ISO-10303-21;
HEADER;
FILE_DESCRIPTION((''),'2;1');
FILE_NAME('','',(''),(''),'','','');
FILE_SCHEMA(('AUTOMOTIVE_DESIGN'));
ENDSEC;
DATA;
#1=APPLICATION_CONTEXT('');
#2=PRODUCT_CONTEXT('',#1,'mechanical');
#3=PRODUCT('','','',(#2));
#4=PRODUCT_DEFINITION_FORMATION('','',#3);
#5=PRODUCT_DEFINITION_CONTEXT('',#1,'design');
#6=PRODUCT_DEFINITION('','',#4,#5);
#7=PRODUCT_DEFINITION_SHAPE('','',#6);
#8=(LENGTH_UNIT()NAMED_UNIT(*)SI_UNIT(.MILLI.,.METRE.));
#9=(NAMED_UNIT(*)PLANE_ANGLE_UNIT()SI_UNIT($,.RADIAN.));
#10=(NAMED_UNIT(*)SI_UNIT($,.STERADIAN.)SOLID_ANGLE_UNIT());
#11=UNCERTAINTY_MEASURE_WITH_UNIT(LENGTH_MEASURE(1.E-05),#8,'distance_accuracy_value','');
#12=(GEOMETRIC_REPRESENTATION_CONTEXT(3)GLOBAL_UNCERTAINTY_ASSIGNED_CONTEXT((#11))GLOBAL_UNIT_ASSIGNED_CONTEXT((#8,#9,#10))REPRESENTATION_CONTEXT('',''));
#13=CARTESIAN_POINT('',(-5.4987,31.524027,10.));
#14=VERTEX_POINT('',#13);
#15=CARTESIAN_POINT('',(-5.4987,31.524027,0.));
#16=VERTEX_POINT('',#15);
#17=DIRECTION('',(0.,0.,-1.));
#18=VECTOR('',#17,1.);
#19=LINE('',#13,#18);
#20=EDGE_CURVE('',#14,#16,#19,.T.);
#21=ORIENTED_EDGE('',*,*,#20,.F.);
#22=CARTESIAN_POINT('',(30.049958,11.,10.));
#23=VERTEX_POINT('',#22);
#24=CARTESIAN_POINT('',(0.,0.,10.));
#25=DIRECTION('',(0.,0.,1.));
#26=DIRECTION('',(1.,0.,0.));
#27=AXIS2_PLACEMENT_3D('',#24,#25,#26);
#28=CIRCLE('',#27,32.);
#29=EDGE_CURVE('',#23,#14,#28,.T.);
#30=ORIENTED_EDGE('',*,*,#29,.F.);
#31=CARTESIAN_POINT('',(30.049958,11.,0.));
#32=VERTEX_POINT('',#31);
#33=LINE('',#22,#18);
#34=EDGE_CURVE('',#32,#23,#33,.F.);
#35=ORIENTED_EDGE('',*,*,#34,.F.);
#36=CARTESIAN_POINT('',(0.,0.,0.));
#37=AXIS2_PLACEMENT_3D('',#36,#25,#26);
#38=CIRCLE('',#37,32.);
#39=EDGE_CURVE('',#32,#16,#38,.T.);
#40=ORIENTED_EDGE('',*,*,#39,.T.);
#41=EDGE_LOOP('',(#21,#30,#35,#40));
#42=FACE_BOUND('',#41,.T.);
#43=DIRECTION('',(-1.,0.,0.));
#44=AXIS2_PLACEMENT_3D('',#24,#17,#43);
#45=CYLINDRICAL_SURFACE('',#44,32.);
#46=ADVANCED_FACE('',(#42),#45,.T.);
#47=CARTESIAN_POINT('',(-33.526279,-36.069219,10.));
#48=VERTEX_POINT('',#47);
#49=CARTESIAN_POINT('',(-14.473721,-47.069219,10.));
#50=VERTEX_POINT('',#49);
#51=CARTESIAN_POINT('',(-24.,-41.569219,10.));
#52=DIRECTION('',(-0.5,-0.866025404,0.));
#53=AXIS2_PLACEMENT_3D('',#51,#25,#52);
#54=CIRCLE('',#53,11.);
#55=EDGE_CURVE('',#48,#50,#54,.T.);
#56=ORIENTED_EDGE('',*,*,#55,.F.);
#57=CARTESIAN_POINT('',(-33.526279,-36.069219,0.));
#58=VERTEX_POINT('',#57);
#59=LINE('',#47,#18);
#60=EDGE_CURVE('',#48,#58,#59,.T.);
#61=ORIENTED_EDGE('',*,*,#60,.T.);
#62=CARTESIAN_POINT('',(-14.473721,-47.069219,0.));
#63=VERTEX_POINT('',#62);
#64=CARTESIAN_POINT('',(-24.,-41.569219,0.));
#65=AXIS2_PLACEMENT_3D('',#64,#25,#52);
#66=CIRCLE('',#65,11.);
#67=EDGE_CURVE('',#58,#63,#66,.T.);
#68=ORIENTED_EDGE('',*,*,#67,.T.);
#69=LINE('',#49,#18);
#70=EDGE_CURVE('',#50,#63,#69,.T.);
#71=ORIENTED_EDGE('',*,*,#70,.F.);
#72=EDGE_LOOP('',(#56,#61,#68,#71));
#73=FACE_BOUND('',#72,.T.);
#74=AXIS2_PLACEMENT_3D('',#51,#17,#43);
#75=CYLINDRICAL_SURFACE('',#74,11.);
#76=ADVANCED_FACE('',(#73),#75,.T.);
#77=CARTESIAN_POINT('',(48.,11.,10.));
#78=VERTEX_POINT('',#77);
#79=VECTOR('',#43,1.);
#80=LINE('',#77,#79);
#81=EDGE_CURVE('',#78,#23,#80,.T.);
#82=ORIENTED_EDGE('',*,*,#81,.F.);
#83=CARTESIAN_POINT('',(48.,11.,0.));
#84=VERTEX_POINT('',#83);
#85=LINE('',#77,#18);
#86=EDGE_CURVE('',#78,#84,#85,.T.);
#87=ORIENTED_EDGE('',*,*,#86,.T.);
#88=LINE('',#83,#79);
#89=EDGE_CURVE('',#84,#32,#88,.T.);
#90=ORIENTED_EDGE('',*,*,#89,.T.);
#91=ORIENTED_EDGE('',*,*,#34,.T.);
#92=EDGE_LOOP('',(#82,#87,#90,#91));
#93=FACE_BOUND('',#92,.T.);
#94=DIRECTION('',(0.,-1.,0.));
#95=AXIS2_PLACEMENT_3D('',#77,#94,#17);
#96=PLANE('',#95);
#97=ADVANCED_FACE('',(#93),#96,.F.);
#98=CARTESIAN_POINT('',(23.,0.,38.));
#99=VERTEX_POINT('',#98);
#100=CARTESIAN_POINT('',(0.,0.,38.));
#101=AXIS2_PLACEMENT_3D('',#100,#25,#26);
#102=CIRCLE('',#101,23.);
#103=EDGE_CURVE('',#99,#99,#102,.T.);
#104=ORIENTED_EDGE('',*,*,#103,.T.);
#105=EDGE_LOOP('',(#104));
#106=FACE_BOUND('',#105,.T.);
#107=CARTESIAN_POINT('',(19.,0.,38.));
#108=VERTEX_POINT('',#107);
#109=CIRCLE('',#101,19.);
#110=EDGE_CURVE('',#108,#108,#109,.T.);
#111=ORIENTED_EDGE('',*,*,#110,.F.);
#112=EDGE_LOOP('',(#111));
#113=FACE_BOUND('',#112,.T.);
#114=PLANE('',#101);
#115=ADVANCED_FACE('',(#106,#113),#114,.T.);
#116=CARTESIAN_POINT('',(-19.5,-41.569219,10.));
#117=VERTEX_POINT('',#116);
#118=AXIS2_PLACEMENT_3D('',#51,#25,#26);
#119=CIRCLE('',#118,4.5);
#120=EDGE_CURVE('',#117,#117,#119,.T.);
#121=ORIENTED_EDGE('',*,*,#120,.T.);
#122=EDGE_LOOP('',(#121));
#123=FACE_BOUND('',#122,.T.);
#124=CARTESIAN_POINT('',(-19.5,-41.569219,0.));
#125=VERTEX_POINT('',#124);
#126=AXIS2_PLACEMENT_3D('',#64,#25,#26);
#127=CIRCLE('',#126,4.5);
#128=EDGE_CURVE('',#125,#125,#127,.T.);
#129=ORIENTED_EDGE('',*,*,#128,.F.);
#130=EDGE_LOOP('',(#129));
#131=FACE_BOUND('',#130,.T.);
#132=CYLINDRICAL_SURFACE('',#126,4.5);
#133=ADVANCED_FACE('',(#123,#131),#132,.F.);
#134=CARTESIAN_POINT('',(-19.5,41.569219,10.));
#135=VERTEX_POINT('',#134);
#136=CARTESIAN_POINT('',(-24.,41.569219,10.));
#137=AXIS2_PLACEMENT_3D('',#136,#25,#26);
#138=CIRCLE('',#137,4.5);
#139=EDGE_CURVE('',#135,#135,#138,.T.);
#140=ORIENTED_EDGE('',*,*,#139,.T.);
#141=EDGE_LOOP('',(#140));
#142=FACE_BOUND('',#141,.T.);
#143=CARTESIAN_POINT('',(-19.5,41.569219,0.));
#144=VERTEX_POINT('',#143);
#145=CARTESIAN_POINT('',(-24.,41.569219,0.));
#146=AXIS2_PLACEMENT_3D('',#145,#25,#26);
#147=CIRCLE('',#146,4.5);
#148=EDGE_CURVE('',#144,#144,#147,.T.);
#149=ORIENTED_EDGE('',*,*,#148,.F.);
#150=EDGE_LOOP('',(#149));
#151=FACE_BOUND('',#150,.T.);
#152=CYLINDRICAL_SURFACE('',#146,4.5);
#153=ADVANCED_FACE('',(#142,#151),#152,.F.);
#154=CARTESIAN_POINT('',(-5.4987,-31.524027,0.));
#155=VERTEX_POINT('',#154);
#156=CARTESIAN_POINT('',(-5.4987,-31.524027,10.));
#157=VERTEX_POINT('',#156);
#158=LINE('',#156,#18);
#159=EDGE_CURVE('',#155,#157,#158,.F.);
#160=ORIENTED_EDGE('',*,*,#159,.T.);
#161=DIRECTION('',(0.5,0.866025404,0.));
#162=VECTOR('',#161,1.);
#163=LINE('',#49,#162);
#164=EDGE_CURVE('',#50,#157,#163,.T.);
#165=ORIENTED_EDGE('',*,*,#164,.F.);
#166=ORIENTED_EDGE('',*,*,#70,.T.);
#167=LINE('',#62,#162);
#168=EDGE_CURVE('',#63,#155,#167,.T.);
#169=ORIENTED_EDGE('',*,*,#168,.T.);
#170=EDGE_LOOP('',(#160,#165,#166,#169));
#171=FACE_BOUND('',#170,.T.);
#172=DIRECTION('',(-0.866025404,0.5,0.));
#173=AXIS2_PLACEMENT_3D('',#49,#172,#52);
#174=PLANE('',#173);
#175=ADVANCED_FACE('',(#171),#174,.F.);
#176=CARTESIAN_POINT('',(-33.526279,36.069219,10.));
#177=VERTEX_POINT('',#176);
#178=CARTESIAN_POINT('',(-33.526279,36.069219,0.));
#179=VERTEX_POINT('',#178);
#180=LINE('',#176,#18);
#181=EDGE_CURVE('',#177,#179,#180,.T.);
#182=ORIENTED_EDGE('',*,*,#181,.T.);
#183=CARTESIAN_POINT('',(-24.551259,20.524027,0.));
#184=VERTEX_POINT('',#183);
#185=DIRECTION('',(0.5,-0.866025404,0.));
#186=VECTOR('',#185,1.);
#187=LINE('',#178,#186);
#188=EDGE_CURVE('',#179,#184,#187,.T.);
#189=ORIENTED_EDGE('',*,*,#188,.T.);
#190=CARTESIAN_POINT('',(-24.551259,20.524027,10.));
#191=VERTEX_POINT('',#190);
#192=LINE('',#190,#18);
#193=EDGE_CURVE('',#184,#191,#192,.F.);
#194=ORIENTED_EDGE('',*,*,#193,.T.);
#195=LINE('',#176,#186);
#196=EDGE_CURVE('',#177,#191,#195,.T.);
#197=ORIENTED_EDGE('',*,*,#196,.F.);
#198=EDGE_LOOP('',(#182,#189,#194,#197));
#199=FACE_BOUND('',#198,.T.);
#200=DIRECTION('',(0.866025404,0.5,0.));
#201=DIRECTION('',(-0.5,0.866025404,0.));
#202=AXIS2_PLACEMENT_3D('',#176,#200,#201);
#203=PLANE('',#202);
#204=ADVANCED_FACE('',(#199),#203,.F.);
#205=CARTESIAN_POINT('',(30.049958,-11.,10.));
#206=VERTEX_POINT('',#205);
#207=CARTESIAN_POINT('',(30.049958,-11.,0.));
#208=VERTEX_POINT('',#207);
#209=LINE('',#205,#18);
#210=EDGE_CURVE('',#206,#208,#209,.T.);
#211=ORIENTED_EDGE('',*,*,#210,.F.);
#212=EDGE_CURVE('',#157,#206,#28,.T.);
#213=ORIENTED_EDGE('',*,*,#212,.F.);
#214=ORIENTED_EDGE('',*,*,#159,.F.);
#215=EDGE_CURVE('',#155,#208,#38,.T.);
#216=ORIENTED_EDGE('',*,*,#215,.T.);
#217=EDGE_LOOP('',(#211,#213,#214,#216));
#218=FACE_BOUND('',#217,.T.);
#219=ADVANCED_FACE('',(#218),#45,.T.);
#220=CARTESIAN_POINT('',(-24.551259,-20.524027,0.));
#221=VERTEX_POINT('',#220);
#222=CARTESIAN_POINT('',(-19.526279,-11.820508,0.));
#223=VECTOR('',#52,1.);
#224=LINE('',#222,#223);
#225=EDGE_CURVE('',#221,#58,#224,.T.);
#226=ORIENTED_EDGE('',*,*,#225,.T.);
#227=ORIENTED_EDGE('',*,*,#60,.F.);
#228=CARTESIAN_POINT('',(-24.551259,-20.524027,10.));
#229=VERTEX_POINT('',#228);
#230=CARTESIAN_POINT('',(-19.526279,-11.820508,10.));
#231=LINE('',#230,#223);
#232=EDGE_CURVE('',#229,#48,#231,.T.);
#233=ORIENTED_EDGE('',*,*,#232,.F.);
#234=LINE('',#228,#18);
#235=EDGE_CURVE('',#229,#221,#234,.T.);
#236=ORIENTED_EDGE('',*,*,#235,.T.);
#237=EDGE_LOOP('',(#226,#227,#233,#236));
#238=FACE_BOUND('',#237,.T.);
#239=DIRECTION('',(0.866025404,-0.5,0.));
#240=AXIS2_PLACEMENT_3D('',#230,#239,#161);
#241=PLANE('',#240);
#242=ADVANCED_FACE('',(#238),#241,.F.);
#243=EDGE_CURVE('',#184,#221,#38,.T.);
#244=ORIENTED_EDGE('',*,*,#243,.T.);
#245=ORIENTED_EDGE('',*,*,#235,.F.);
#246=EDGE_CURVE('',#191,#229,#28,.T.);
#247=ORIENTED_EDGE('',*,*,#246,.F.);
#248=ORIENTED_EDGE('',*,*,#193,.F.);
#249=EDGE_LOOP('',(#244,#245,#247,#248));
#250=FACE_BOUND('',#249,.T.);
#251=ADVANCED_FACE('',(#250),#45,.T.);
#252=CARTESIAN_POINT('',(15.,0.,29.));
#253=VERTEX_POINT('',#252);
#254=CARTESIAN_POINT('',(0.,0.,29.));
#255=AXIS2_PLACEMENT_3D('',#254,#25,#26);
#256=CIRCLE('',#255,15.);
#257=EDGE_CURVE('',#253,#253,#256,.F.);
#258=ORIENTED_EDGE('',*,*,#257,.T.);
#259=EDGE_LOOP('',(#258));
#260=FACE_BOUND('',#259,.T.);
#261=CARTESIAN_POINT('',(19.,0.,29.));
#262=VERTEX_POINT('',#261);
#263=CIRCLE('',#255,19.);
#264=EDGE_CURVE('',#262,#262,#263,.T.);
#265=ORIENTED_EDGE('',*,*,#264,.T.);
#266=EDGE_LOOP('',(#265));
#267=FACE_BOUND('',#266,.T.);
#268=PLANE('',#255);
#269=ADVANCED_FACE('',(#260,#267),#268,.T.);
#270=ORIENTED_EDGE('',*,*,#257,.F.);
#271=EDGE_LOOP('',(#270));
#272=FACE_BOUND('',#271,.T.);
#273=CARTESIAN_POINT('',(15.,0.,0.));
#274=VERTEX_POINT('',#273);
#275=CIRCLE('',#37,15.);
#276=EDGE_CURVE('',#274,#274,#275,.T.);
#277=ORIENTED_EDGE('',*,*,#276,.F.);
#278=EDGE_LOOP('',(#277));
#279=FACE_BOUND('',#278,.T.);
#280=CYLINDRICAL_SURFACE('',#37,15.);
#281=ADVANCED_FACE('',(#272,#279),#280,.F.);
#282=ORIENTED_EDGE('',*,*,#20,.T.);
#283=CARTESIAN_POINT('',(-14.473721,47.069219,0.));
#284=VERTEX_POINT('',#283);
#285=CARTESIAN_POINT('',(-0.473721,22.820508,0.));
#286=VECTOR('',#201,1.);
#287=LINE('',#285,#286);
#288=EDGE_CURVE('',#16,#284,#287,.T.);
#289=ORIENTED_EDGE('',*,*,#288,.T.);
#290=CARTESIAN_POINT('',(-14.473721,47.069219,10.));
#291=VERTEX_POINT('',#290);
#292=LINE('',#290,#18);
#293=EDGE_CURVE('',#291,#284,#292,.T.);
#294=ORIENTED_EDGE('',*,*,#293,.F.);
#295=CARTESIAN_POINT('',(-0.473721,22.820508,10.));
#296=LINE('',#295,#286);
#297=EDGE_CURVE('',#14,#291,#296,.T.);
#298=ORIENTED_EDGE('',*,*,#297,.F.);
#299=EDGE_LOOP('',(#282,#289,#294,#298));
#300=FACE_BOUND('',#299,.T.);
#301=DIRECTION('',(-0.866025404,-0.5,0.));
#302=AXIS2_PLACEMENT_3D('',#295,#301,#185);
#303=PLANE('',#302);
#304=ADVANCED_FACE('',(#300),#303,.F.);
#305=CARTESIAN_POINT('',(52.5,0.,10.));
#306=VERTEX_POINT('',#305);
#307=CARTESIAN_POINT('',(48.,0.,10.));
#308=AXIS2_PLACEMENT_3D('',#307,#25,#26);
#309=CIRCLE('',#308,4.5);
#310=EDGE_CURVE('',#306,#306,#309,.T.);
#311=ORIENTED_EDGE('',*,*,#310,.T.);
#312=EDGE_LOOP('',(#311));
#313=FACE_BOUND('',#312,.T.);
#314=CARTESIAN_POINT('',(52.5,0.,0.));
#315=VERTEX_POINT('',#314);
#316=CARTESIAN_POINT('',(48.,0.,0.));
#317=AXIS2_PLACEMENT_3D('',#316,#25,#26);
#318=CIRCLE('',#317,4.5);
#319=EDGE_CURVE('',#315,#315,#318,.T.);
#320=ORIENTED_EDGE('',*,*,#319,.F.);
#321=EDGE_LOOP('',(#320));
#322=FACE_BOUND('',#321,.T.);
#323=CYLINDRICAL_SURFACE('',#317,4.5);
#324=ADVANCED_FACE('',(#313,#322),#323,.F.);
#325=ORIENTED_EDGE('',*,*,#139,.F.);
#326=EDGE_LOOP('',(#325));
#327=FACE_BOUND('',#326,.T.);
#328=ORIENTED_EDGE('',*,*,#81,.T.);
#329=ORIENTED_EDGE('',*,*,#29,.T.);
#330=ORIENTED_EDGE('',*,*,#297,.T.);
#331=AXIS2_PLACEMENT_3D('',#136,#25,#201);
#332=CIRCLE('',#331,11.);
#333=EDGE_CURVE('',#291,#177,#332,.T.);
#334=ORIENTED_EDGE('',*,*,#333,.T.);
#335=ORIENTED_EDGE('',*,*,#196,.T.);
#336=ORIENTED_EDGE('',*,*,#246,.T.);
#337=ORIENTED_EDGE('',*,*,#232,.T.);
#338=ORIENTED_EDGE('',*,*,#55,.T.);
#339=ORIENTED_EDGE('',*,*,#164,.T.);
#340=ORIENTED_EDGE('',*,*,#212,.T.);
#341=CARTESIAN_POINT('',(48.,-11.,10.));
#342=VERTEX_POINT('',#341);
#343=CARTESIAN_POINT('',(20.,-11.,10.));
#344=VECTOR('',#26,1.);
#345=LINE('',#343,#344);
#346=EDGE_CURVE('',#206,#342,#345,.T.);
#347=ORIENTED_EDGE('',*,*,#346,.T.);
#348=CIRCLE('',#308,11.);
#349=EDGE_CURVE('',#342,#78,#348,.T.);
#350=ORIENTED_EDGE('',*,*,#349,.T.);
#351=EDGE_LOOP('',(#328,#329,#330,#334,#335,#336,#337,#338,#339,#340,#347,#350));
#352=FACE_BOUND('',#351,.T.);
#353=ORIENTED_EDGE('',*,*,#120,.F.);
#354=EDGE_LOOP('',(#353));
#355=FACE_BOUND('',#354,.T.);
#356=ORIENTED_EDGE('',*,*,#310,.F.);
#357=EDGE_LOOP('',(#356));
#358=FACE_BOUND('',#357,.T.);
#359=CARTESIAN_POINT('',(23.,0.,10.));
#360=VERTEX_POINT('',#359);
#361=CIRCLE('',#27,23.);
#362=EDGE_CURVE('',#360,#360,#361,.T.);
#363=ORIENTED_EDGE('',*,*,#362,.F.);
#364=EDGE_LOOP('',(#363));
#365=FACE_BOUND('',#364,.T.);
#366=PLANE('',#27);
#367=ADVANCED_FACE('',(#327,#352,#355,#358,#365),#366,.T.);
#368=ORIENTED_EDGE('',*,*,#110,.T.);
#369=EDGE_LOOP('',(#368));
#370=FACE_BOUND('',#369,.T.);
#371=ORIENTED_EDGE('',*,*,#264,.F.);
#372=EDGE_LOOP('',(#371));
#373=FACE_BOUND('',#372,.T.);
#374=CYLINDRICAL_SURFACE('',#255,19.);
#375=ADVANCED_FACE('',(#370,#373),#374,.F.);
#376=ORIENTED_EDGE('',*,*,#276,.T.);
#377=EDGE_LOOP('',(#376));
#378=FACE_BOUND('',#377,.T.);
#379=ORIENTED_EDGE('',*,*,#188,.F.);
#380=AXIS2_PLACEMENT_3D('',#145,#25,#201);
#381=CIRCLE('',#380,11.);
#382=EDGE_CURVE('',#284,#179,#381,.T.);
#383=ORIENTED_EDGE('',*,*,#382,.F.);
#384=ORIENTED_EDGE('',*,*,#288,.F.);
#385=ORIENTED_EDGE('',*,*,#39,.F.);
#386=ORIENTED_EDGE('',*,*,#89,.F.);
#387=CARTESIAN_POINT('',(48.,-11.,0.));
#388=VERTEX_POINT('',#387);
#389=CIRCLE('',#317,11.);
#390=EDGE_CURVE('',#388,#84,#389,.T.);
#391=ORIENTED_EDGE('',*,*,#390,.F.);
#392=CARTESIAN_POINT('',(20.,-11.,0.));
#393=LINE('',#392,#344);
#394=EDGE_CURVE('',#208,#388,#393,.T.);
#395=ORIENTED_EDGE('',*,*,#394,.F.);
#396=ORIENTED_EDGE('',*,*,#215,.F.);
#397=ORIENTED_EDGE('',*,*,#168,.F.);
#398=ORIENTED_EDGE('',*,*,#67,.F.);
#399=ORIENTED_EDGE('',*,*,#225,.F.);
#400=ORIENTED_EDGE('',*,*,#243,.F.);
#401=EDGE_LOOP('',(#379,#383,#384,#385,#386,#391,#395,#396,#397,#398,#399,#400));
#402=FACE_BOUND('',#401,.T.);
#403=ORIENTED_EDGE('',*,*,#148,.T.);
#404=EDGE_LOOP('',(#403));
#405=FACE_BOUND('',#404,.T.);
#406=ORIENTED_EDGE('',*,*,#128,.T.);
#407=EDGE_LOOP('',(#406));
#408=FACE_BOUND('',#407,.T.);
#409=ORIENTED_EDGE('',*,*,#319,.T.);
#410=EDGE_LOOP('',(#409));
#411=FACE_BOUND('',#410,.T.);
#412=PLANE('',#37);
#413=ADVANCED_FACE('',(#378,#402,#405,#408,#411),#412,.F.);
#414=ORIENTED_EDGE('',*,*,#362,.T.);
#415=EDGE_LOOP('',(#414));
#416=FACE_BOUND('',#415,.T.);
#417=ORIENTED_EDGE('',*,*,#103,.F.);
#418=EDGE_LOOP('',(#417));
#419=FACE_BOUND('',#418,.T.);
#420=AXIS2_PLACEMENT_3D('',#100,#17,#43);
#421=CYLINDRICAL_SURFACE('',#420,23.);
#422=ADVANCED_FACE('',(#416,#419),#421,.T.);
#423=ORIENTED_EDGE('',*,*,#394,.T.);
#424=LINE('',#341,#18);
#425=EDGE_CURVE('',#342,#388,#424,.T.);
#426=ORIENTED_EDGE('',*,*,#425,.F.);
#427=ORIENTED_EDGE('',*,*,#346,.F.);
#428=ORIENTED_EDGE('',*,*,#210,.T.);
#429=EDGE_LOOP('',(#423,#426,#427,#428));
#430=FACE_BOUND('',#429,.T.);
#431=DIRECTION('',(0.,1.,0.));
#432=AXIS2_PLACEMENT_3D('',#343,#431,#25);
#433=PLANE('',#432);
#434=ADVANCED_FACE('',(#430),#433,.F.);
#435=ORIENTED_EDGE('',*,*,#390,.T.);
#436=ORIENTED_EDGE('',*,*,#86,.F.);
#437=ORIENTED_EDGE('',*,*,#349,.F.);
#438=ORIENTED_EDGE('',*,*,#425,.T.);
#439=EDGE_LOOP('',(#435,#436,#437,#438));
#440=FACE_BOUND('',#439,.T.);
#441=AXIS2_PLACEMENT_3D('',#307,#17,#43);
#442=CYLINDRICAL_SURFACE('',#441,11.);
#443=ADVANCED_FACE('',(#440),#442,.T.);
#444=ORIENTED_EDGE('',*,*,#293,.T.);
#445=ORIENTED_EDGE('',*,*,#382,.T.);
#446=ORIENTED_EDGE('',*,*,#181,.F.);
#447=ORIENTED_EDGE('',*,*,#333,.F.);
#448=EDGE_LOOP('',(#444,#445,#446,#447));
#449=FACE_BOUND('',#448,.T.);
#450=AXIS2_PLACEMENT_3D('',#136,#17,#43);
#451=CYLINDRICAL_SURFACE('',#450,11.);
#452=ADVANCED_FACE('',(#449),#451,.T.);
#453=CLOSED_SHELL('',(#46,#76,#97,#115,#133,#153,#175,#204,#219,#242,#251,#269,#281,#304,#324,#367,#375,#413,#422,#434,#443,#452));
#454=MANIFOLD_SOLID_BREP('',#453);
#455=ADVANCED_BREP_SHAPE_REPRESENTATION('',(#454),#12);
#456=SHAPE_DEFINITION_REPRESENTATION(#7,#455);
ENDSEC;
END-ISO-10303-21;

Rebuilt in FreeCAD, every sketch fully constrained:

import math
import FreeCAD as App
import Part
import Sketcher

V = App.Vector

doc = App.newDocument("Part")
body = doc.addObject("PartDesign::Body", "Body")

sketch1 = doc.addObject("Sketcher::SketchObject", "Sketch")
body.addObject(sketch1)
sketch1.AttachmentSupport = (doc.XY_Plane, [""])
sketch1.MapMode = "FlatFace"
sketch1.addGeometry(Part.Circle(V(0, 0, 0), V(0, 0, 1), 32), False)
sketch1.addConstraint([
    Sketcher.Constraint("Coincident", 0, 3, -1, 1),
    Sketcher.Constraint("Diameter", 0, 64.0),
])
pad1 = doc.addObject("PartDesign::Pad", "Pad")
body.addObject(pad1)
pad1.Profile = sketch1
pad1.Length = 10

sketch2 = doc.addObject("Sketcher::SketchObject", "Sketch001")
body.addObject(sketch2)
sketch2.AttachmentSupport = (doc.XY_Plane, [""])
sketch2.MapMode = "FlatFace"
sketch2.addGeometry([
    Part.LineSegment(V(20, -11, 0), V(48, -11, 0)),
    Part.ArcOfCircle(Part.Circle(V(48, 0, 0), V(0, 0, 1), 11), math.radians(-90), math.radians(90)),
    Part.LineSegment(V(48, 11, 0), V(20, 11, 0)),
    Part.ArcOfCircle(Part.Circle(V(20, 0, 0), V(0, 0, 1), 11), math.radians(90), math.radians(270)),
], False)
sketch2.addConstraint([
    Sketcher.Constraint("Tangent", 0, 2, 1, 1),
    Sketcher.Constraint("Tangent", 1, 2, 2, 1),
    Sketcher.Constraint("Tangent", 2, 2, 3, 1),
    Sketcher.Constraint("Tangent", 3, 2, 0, 1),
    Sketcher.Constraint("Horizontal", 0),
    Sketcher.Constraint("Horizontal", 2),
    Sketcher.Constraint("PointOnObject", 1, 3, -1),
    Sketcher.Constraint("Radius", 1, 11.0),
    Sketcher.Constraint("DistanceX", 0, 1, 0, 2, 28.0),
    Sketcher.Constraint("DistanceX", -1, 1, 1, 3, 48.0),
])
pad2 = doc.addObject("PartDesign::Pad", "Pad001")
body.addObject(pad2)
pad2.Profile = sketch2
pad2.Length = 10
doc.recompute()

polarpattern = doc.addObject("PartDesign::PolarPattern", "PolarPattern")
body.addObject(polarpattern)
polarpattern.Originals = [pad2]
polarpattern.Axis = (doc.Z_Axis, [""])
polarpattern.Angle = 360
polarpattern.Occurrences = 3
body.Tip = polarpattern

sketch3 = doc.addObject("Sketcher::SketchObject", "Sketch002")
body.addObject(sketch3)
sketch3.AttachmentSupport = (doc.XY_Plane, [""])
sketch3.MapMode = "FlatFace"
sketch3.AttachmentOffset = App.Placement(V(0, 0, 10), App.Rotation())
sketch3.addGeometry(Part.Circle(V(0, 0, 0), V(0, 0, 1), 23), False)
sketch3.addConstraint([
    Sketcher.Constraint("Coincident", 0, 3, -1, 1),
    Sketcher.Constraint("Diameter", 0, 46.0),
])
pad3 = doc.addObject("PartDesign::Pad", "Pad002")
body.addObject(pad3)
pad3.Profile = sketch3
pad3.Length = 28

sketch4 = doc.addObject("Sketcher::SketchObject", "Sketch003")
body.addObject(sketch4)
sketch4.AttachmentSupport = (doc.XY_Plane, [""])
sketch4.MapMode = "FlatFace"
sketch4.AttachmentOffset = App.Placement(V(0, 0, 38), App.Rotation())
sketch4.addGeometry(Part.Circle(V(0, 0, 0), V(0, 0, 1), 15), False)
sketch4.addConstraint([
    Sketcher.Constraint("Coincident", 0, 3, -1, 1),
    Sketcher.Constraint("Diameter", 0, 30.0),
])
pocket1 = doc.addObject("PartDesign::Pocket", "Pocket")
body.addObject(pocket1)
pocket1.Profile = sketch4
pocket1.Type = "ThroughAll"

sketch5 = doc.addObject("Sketcher::SketchObject", "Sketch004")
body.addObject(sketch5)
sketch5.AttachmentSupport = (doc.XY_Plane, [""])
sketch5.MapMode = "FlatFace"
sketch5.AttachmentOffset = App.Placement(V(0, 0, 38), App.Rotation())
sketch5.addGeometry(Part.Circle(V(0, 0, 0), V(0, 0, 1), 19), False)
sketch5.addConstraint([
    Sketcher.Constraint("Coincident", 0, 3, -1, 1),
    Sketcher.Constraint("Diameter", 0, 38.0),
])
pocket2 = doc.addObject("PartDesign::Pocket", "Pocket001")
body.addObject(pocket2)
pocket2.Profile = sketch5
pocket2.Length = 9

sketch6 = doc.addObject("Sketcher::SketchObject", "Sketch005")
body.addObject(sketch6)
sketch6.AttachmentSupport = (doc.XY_Plane, [""])
sketch6.MapMode = "FlatFace"
sketch6.AttachmentOffset = App.Placement(V(0, 0, 10), App.Rotation())
sketch6.addGeometry([
    Part.Circle(V(48, 0, 0), V(0, 0, 1), 4.5),
    Part.Circle(V(-24, 41.6, 0), V(0, 0, 1), 4.5),
    Part.Circle(V(-24, -41.6, 0), V(0, 0, 1), 4.5),
], False)
sketch6.addConstraint([
    Sketcher.Constraint("Equal", 0, 1),
    Sketcher.Constraint("Equal", 1, 2),
    Sketcher.Constraint("Symmetric", 1, 3, 2, 3, -1),
    Sketcher.Constraint("PointOnObject", 0, 3, -1),
    Sketcher.Constraint("Diameter", 0, 9.0),
    Sketcher.Constraint("DistanceX", -1, 1, 0, 3, 48.0),
    Sketcher.Constraint("DistanceX", 1, 3, -1, 1, 24.0),
    Sketcher.Constraint("DistanceY", -1, 1, 1, 3, 41.569219),
])
pocket3 = doc.addObject("PartDesign::Pocket", "Pocket002")
body.addObject(pocket3)
pocket3.Profile = sketch6
pocket3.Type = "ThroughAll"

doc.recompute()
